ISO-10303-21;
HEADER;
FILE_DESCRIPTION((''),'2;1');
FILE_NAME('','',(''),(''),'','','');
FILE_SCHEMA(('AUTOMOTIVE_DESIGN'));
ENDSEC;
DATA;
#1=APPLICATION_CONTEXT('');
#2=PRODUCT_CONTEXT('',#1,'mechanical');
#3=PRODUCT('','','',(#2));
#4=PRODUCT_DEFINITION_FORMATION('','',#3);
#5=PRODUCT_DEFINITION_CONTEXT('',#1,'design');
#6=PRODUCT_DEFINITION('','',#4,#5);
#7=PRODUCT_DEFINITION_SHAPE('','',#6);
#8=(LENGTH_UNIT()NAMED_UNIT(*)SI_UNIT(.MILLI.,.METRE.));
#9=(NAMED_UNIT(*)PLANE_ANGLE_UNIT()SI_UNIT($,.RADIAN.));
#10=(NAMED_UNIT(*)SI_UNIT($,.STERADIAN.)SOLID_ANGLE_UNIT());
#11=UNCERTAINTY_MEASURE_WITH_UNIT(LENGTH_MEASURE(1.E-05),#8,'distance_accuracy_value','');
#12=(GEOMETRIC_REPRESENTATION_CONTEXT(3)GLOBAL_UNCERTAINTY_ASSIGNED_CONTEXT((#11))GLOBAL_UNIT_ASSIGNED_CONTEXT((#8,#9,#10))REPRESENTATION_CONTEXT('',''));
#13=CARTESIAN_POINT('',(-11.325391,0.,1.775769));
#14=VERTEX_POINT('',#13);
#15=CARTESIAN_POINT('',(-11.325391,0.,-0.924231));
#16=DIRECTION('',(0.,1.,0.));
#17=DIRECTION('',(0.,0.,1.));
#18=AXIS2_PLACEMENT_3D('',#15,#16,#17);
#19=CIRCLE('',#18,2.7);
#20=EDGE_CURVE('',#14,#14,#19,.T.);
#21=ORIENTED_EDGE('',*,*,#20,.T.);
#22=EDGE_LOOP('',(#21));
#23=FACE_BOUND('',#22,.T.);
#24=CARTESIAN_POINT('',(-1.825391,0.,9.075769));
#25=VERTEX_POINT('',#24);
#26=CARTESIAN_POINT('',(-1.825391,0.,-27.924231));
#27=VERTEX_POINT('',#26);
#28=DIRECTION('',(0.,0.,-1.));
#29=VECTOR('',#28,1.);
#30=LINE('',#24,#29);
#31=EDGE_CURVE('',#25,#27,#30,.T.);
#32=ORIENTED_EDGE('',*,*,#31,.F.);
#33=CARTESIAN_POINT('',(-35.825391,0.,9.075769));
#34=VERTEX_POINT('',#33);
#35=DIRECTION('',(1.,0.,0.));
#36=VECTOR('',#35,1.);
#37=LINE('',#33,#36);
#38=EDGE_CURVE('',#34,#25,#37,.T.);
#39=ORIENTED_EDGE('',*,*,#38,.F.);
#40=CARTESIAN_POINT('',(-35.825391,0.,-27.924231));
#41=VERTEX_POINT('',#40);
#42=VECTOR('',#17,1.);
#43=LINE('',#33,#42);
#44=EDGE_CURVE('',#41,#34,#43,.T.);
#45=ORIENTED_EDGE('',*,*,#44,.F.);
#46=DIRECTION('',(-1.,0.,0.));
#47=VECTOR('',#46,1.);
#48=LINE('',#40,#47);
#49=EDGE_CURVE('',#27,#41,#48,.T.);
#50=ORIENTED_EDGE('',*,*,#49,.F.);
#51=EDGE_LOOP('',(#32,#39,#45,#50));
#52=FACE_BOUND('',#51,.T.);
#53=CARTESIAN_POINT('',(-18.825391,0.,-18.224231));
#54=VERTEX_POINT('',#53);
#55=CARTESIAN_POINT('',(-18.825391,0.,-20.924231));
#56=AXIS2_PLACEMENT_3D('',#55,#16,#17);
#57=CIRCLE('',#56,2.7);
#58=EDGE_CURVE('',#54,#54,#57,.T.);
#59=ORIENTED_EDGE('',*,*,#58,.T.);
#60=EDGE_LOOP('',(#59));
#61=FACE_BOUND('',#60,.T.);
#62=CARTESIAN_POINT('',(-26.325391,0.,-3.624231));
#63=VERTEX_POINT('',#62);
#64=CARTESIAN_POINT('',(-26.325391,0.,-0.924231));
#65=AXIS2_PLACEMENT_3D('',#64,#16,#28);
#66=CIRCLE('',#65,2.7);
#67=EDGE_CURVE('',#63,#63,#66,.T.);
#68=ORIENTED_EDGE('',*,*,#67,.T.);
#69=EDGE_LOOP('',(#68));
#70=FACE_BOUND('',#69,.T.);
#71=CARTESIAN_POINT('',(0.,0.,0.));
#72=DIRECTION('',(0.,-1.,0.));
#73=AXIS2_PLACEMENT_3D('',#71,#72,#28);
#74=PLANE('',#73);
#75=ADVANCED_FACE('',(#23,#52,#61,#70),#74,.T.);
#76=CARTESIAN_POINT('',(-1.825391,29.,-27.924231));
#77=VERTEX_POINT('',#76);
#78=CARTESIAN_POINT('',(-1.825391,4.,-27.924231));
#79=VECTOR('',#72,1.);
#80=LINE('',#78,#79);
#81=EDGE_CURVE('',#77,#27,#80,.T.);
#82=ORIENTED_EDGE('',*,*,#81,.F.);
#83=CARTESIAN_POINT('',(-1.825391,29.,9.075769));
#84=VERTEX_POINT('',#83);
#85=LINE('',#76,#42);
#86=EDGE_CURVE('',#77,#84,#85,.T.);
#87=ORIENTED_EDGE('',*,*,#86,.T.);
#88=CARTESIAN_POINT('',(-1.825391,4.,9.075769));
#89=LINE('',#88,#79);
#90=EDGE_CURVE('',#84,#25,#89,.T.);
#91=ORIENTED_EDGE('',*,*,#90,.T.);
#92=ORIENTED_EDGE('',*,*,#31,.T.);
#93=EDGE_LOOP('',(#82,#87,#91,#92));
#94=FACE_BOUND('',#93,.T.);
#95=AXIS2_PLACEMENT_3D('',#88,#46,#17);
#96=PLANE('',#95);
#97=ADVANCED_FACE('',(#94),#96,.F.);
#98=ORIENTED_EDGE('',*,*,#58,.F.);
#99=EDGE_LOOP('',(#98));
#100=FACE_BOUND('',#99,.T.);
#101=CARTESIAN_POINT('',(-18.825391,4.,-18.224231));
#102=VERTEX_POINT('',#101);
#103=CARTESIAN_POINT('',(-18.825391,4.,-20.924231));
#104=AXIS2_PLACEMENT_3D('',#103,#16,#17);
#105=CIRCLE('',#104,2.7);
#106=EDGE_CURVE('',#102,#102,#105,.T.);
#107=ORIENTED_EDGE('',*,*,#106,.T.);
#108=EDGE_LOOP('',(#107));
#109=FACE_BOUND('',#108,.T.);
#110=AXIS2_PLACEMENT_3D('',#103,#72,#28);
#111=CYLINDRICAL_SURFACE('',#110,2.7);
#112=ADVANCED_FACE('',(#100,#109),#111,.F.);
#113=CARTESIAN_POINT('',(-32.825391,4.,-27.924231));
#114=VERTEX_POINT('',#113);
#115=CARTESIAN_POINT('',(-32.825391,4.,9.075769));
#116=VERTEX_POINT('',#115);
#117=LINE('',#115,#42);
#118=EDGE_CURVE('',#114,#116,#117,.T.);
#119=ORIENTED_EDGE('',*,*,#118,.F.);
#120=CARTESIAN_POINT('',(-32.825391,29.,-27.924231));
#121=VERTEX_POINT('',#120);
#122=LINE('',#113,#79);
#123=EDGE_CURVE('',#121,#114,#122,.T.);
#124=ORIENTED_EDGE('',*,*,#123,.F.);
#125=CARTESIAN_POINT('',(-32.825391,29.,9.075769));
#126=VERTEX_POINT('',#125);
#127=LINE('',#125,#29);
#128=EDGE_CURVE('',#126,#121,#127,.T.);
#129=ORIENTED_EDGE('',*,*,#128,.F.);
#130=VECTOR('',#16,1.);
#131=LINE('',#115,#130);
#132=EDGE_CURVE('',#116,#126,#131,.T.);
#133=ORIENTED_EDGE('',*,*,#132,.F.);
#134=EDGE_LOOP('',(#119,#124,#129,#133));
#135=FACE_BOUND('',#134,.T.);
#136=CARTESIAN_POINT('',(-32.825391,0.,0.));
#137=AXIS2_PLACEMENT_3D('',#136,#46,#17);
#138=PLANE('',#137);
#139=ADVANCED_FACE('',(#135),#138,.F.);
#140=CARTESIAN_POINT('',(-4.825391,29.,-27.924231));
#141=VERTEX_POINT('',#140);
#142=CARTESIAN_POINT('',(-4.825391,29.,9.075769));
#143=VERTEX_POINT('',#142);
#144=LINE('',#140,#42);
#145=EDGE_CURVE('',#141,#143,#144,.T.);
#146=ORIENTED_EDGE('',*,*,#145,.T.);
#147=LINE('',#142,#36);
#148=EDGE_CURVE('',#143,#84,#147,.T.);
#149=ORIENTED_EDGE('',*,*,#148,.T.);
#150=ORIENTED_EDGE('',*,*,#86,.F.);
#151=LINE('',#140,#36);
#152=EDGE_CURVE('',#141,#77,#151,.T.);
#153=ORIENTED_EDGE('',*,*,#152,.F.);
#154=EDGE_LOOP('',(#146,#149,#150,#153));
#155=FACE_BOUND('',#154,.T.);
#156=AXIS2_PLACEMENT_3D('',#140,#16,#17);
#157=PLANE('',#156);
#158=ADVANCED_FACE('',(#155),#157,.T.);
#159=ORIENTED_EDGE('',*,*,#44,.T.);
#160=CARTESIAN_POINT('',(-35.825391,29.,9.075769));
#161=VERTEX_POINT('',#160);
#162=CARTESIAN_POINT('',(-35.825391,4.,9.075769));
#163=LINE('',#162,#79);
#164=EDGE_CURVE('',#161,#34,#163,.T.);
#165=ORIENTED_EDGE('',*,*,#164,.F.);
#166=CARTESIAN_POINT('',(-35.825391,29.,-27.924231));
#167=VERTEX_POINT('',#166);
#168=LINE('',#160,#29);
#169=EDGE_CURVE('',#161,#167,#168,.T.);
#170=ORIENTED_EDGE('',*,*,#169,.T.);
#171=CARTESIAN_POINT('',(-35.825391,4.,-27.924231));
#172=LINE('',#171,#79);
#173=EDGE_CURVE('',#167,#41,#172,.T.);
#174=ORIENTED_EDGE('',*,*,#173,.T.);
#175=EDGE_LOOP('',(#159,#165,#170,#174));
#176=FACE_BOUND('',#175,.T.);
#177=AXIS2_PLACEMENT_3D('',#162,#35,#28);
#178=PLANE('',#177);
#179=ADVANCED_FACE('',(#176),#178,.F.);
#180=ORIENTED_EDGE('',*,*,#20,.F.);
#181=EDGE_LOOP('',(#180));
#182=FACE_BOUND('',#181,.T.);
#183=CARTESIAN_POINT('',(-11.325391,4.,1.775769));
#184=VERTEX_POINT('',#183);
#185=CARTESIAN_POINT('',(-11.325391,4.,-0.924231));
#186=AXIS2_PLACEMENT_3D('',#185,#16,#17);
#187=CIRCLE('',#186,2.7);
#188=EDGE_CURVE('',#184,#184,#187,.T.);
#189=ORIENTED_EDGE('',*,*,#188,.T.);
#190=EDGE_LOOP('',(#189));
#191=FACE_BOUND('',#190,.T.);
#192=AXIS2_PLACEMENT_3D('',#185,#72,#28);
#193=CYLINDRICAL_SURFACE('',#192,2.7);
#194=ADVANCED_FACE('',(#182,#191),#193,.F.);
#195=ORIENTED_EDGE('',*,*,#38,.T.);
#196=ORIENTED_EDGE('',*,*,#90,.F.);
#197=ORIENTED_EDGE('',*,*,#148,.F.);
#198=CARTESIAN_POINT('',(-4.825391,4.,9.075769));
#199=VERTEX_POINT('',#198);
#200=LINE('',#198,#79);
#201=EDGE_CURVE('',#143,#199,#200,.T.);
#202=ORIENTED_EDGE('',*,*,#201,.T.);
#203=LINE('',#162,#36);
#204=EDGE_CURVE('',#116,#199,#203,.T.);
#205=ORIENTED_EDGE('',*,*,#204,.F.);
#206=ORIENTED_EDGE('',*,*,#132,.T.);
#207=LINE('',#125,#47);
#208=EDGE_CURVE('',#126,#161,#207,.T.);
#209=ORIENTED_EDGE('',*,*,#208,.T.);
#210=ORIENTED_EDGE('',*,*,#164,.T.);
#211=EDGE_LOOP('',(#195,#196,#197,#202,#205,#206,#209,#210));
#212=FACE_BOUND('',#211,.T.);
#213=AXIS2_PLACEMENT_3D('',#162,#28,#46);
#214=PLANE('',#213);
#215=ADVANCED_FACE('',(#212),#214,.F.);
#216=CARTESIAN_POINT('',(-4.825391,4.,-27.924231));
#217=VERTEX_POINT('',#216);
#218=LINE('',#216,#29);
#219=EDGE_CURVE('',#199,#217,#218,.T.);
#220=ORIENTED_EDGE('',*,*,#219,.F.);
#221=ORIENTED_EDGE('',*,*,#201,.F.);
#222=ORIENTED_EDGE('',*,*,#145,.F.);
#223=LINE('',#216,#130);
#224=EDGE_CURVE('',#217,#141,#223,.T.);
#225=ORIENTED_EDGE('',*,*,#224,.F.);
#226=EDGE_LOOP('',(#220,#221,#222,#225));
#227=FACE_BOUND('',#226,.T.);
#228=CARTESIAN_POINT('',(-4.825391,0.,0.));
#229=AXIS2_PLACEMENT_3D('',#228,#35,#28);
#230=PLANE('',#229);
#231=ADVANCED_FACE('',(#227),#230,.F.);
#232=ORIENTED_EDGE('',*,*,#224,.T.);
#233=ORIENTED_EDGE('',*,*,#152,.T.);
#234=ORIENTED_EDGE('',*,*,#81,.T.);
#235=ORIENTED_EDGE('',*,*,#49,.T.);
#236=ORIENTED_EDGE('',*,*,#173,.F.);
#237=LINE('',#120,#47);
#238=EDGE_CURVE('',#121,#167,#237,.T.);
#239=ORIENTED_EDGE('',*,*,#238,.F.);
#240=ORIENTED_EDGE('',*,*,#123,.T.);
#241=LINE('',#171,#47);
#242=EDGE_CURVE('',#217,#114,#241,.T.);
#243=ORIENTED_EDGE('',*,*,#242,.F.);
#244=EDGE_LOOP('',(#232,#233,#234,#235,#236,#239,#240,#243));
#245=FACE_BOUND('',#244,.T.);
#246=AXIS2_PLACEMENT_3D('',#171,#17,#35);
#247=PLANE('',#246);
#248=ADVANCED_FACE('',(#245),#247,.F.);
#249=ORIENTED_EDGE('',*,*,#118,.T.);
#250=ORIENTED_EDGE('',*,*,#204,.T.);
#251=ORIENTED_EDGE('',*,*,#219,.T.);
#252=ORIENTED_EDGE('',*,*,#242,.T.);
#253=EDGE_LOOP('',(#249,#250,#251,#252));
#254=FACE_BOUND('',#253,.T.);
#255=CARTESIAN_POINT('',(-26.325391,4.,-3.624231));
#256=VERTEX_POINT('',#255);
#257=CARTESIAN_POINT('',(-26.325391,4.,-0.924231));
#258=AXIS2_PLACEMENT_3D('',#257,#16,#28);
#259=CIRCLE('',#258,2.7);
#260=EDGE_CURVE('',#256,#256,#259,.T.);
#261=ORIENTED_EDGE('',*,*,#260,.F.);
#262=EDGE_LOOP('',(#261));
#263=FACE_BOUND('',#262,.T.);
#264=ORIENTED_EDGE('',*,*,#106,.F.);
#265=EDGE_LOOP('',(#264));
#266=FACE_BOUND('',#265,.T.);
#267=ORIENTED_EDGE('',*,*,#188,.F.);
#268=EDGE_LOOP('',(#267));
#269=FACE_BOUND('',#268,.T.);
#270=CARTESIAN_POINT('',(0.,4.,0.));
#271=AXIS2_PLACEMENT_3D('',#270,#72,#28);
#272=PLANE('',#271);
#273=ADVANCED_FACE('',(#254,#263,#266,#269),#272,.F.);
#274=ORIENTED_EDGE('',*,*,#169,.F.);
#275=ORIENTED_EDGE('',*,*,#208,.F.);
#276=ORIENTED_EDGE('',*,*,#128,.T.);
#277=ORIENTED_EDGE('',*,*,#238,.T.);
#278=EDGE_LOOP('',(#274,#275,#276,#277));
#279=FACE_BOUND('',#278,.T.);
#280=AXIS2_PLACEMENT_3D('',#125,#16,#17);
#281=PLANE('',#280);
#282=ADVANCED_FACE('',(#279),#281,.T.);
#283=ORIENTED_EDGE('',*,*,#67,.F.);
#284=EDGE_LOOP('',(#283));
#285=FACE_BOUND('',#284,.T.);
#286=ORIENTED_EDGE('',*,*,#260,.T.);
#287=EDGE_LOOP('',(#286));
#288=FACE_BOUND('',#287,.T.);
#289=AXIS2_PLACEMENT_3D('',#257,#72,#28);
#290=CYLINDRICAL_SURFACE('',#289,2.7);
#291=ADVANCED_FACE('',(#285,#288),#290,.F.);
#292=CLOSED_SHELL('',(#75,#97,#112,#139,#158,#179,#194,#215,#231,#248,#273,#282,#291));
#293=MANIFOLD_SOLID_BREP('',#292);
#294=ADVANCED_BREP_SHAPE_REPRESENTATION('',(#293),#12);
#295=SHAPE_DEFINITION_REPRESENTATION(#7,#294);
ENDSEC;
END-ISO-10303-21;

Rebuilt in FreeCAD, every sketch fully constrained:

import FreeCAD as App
import Part
import Sketcher
from FreeCAD import Vector


def add_polygon(sketch, points):
    """Adds a closed chain of lines whose ends are joined by coincident constraints."""
    first, n = sketch.GeometryCount, len(points)
    for a, b in zip(points, points[1:] + points[:1]):
        sketch.addGeometry(Part.LineSegment(App.Vector(*a, 0), App.Vector(*b, 0)), False)
    for i in range(n):
        sketch.addConstraint(Sketcher.Constraint("Coincident", first + i, 2, first + (i + 1) % n, 1))

doc = App.newDocument("Part")
body = doc.addObject("PartDesign::Body", "Body")

# Sketch on XZ plane
sketch1 = body.newObject("Sketcher::SketchObject", "Sketch")
sketch1.AttachmentSupport = (doc.getObject("XZ_Plane"), [""])
sketch1.MapMode = "FlatFace"
add_polygon(sketch1, [(-35.8, -27.9), (-35.8, 9.1), (-1.8, 9.1), (-1.8, -27.9)])  # lines 0-3
sketch1.addGeometry(Part.Circle(Vector(-26.3, -0.9, 0), Vector(0, 0, 1), 2.7), False)  # 4
sketch1.addGeometry(Part.Circle(Vector(-11.3, -0.9, 0), Vector(0, 0, 1), 2.7), False)  # 5
sketch1.addGeometry(Part.Circle(Vector(-18.8, -20.9, 0), Vector(0, 0, 1), 2.7), False)  # 6
sketch1.addConstraint([
    Sketcher.Constraint("Vertical", 0),
    Sketcher.Constraint("Horizontal", 1),
    Sketcher.Constraint("Vertical", 2),
    Sketcher.Constraint("Horizontal", 3),
    Sketcher.Constraint("Equal", 4, 5),
    Sketcher.Constraint("Equal", 5, 6),
    Sketcher.Constraint("Horizontal", 4, 3, 5, 3),
    Sketcher.Constraint("Diameter", 4, 5.4),
    Sketcher.Constraint("DistanceX", 1, 1, 1, 2, 34.0),
    Sketcher.Constraint("DistanceY", 0, 1, 0, 2, 37.0),
    Sketcher.Constraint("DistanceX", 4, 3, 5, 3, 15.0),
    Sketcher.Constraint("DistanceY", 6, 3, 4, 3, 20.0),
    Sketcher.Constraint("DistanceY", 4, 3, 0, 2, 10.0),
    Sketcher.Constraint("DistanceX", 0, 2, 6, 3, 17.0),
    Sketcher.Constraint("DistanceX", 4, 3, 6, 3, 7.5),
    Sketcher.Constraint("DistanceX", 4, 3, -1, 1, 26.325391),
    Sketcher.Constraint("DistanceY", 4, 3, -1, 1, 0.924231),
])
pad1 = body.newObject("PartDesign::Pad", "Pad")
pad1.Profile = sketch1
pad1.Length = 4
pad1.Reversed = True

# Sketch on YZ plane
sketch2 = body.newObject("Sketcher::SketchObject", "Sketch001")
sketch2.AttachmentSupport = (doc.getObject("YZ_Plane"), [""])
sketch2.MapMode = "FlatFace"
sketch2.AttachmentOffset = App.Placement(Vector(0, 0, -35.825391), App.Rotation())
add_polygon(sketch2, [(29, -28), (4, -28), (4, 9), (29, 9)])  # lines 0-3
sketch2.addConstraint([
    Sketcher.Constraint("Horizontal", 0),
    Sketcher.Constraint("Vertical", 1),
    Sketcher.Constraint("Horizontal", 2),
    Sketcher.Constraint("Vertical", 3),
    Sketcher.Constraint("DistanceX", 0, 2, 0, 1, 25.0),
    Sketcher.Constraint("DistanceY", 1, 1, 1, 2, 37.0),
    Sketcher.Constraint("DistanceX", -1, 1, 0, 2, 4.0),
    Sketcher.Constraint("DistanceY", 0, 2, -1, 1, 27.924231),
])
pad2 = body.newObject("PartDesign::Pad", "Pad001")
pad2.Profile = sketch2
pad2.Length = 3

# Sketch on YZ plane
sketch3 = body.newObject("Sketcher::SketchObject", "Sketch002")
sketch3.AttachmentSupport = (doc.getObject("YZ_Plane"), [""])
sketch3.MapMode = "FlatFace"
sketch3.AttachmentOffset = App.Placement(Vector(0, 0, -1.825391), App.Rotation())
add_polygon(sketch3, [(29, 9), (4, 9), (4, -28), (29, -28)])  # lines 0-3
sketch3.addConstraint([
    Sketcher.Constraint("Horizontal", 0),
    Sketcher.Constraint("Vertical", 1),
    Sketcher.Constraint("Horizontal", 2),
    Sketcher.Constraint("Vertical", 3),
    Sketcher.Constraint("DistanceX", 0, 2, 0, 1, 25.0),
    Sketcher.Constraint("DistanceY", 1, 2, 1, 1, 37.0),
    Sketcher.Constraint("DistanceX", -1, 1, 0, 2, 4.0),
    Sketcher.Constraint("DistanceY", -1, 1, 0, 2, 9.075769),
])
pad3 = body.newObject("PartDesign::Pad", "Pad002")
pad3.Profile = sketch3
pad3.Length = 3
pad3.Reversed = True

doc.recompute()
